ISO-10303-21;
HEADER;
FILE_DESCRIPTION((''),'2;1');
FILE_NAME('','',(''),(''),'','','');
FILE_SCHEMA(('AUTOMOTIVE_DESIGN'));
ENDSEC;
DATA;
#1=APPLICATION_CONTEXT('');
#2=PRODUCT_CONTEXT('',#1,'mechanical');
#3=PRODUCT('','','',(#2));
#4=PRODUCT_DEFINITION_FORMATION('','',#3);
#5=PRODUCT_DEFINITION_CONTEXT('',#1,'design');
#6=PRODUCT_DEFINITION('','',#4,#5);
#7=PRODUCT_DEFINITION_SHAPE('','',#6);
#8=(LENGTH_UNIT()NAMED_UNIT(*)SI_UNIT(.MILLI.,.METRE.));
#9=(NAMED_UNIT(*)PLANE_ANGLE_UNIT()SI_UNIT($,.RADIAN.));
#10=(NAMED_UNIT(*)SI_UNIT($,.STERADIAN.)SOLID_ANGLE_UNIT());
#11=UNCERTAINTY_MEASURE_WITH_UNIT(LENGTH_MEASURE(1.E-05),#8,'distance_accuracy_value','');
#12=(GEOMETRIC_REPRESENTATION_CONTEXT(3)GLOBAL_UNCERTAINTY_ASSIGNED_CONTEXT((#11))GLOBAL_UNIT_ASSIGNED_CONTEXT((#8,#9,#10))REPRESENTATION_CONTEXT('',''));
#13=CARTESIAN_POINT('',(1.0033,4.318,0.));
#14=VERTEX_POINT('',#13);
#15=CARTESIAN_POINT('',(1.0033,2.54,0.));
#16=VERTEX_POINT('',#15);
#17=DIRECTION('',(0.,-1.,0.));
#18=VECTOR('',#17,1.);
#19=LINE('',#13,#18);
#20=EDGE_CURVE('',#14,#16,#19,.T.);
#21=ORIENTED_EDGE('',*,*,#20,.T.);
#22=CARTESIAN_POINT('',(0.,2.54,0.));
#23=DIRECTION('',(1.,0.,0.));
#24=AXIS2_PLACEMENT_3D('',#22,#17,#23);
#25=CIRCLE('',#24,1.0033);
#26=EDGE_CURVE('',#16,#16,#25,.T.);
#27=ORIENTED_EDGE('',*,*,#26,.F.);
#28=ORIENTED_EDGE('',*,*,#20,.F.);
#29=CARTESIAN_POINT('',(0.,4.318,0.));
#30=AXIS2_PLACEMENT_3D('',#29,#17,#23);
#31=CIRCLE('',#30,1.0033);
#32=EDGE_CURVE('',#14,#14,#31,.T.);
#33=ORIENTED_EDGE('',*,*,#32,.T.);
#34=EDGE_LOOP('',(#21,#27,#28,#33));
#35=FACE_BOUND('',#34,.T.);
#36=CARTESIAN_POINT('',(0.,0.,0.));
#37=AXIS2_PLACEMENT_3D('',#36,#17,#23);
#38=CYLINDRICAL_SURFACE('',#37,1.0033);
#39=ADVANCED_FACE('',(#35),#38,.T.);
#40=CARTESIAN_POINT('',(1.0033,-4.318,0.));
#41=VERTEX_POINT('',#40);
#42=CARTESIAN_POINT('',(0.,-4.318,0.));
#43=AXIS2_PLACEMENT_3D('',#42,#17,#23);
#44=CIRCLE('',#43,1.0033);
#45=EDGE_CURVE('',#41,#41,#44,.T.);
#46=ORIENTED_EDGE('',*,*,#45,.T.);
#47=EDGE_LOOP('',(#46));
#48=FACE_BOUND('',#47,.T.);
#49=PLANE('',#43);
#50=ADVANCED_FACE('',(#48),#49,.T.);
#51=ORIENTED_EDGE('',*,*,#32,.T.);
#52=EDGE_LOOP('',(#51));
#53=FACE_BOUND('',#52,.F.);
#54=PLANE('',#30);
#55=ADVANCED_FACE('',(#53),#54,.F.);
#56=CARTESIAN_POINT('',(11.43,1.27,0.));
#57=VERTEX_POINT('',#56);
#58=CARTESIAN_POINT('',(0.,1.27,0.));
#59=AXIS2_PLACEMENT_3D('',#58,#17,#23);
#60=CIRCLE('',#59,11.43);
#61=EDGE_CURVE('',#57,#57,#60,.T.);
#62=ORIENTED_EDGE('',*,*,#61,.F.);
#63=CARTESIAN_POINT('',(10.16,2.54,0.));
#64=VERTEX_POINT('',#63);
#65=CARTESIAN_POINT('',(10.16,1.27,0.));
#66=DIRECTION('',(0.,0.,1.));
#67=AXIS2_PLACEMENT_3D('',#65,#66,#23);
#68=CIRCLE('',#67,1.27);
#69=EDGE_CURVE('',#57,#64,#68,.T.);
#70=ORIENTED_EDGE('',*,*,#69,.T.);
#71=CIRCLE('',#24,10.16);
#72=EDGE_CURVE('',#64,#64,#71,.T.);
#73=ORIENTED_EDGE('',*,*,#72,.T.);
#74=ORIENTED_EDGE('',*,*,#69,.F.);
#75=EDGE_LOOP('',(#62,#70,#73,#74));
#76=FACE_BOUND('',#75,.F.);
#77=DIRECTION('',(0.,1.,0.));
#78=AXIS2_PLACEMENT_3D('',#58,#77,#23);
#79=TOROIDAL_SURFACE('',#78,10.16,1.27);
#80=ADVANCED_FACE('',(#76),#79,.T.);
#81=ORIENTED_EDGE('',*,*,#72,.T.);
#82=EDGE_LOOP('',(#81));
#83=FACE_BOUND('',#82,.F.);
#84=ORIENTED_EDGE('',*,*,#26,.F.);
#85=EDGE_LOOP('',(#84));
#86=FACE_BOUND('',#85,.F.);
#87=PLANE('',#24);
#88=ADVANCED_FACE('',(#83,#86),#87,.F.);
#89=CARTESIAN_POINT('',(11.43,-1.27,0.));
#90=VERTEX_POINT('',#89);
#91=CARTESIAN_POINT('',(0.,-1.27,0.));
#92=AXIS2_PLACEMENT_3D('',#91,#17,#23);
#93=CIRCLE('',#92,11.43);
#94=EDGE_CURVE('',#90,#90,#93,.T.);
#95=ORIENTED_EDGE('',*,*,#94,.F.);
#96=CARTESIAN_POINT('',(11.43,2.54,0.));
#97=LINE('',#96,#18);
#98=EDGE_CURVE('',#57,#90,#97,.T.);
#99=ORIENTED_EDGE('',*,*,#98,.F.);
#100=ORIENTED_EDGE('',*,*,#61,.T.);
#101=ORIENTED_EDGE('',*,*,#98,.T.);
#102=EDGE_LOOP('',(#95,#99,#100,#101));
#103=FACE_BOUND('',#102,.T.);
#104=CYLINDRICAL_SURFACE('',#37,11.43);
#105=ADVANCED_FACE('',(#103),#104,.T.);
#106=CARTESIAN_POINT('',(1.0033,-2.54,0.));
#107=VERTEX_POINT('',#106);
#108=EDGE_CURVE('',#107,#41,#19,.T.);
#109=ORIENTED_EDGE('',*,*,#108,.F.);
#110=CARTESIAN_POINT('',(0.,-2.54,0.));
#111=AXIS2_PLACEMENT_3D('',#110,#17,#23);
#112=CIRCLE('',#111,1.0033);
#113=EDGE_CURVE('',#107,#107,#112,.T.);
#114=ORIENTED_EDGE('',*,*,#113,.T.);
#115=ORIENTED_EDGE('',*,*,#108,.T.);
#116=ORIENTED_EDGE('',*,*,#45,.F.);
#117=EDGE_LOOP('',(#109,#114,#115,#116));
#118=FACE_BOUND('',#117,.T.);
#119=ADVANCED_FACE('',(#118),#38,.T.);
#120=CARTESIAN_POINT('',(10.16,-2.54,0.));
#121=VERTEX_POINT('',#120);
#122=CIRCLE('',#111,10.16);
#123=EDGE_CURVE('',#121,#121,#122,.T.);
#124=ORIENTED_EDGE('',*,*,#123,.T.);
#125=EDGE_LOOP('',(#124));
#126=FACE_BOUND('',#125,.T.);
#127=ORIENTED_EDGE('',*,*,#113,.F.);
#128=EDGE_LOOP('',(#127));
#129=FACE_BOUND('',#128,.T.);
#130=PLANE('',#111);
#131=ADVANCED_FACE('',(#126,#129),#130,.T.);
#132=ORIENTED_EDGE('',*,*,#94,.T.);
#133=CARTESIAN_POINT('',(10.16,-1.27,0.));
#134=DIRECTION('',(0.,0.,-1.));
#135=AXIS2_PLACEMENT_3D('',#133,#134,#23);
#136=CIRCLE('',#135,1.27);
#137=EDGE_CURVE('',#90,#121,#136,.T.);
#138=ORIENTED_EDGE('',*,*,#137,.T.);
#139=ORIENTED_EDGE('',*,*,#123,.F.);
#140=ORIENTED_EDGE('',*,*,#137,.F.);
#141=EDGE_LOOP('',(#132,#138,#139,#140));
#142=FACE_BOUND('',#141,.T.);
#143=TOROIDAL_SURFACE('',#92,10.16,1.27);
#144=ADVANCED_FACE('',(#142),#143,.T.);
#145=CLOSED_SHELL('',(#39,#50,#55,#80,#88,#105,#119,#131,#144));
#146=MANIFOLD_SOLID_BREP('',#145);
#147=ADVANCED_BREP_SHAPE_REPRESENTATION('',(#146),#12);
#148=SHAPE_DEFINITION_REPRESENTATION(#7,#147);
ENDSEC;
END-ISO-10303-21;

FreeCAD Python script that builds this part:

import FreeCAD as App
import Part
import Sketcher
from FreeCAD import Vector
Q = App.Units.Quantity


def edges_at(feature, points):
    """Names of the edges that pass closest to the given points."""
    edges = feature.Shape.Edges
    near = lambda p: min(range(len(edges)), key=lambda i: edges[i].distToShape(Part.Vertex(*p))[0])
    return sorted({f"Edge{near(p) + 1}" for p in points})

doc = App.newDocument("Part")
body = doc.addObject("PartDesign::Body", "Body")

sketch1 = body.newObject("Sketcher::SketchObject", "Sketch")
sketch1.AttachmentSupport = (doc.getObject("XZ_Plane"), [""])
sketch1.MapMode = "FlatFace"
sketch1.addGeometry(Part.Circle(Vector(0, 0, 0), Vector(0, 0, 1), 1), False)
sketch1.addConstraint(Sketcher.Constraint("Coincident", 0, 3, -1, 1))
sketch1.addConstraint(Sketcher.Constraint("Diameter", 0, Q("0.079 in")))
pad1 = body.newObject("PartDesign::Pad", "Pad")
pad1.Profile = sketch1
pad1.Type = "TwoLengths"
pad1.Length = Q("0.17 in")
pad1.Length2 = Q("0.17 in")

sketch2 = body.newObject("Sketcher::SketchObject", "Sketch001")
sketch2.AttachmentSupport = (doc.getObject("XZ_Plane"), [""])
sketch2.MapMode = "FlatFace"
sketch2.addGeometry(Part.Circle(Vector(0, 0, 0), Vector(0, 0, 1), 11.4), False)
sketch2.addGeometry(Part.Circle(Vector(0, 0, 0), Vector(0, 0, 1), 1), False)
sketch2.addConstraint(Sketcher.Constraint("Coincident", 0, 3, -1, 1))
sketch2.addConstraint(Sketcher.Constraint("Coincident", 1, 3, -1, 1))
sketch2.addConstraint(Sketcher.Constraint("Diameter", 0, Q("0.9 in")))
sketch2.addConstraint(Sketcher.Constraint("Diameter", 1, Q("0.079 in")))
pad2 = body.newObject("PartDesign::Pad", "Pad001")
pad2.Profile = sketch2
pad2.Type = "TwoLengths"
pad2.Length = Q("0.1 in")
pad2.Length2 = Q("0.1 in")
doc.recompute()

fillet = body.newObject("PartDesign::Fillet", "Fillet")
fillet.Base = (pad2, edges_at(pad2, [(-11.43, -2.54, 0), (-11.43, 2.54, 0)]))
fillet.Radius = Q("0.05 in")

doc.recompute()
